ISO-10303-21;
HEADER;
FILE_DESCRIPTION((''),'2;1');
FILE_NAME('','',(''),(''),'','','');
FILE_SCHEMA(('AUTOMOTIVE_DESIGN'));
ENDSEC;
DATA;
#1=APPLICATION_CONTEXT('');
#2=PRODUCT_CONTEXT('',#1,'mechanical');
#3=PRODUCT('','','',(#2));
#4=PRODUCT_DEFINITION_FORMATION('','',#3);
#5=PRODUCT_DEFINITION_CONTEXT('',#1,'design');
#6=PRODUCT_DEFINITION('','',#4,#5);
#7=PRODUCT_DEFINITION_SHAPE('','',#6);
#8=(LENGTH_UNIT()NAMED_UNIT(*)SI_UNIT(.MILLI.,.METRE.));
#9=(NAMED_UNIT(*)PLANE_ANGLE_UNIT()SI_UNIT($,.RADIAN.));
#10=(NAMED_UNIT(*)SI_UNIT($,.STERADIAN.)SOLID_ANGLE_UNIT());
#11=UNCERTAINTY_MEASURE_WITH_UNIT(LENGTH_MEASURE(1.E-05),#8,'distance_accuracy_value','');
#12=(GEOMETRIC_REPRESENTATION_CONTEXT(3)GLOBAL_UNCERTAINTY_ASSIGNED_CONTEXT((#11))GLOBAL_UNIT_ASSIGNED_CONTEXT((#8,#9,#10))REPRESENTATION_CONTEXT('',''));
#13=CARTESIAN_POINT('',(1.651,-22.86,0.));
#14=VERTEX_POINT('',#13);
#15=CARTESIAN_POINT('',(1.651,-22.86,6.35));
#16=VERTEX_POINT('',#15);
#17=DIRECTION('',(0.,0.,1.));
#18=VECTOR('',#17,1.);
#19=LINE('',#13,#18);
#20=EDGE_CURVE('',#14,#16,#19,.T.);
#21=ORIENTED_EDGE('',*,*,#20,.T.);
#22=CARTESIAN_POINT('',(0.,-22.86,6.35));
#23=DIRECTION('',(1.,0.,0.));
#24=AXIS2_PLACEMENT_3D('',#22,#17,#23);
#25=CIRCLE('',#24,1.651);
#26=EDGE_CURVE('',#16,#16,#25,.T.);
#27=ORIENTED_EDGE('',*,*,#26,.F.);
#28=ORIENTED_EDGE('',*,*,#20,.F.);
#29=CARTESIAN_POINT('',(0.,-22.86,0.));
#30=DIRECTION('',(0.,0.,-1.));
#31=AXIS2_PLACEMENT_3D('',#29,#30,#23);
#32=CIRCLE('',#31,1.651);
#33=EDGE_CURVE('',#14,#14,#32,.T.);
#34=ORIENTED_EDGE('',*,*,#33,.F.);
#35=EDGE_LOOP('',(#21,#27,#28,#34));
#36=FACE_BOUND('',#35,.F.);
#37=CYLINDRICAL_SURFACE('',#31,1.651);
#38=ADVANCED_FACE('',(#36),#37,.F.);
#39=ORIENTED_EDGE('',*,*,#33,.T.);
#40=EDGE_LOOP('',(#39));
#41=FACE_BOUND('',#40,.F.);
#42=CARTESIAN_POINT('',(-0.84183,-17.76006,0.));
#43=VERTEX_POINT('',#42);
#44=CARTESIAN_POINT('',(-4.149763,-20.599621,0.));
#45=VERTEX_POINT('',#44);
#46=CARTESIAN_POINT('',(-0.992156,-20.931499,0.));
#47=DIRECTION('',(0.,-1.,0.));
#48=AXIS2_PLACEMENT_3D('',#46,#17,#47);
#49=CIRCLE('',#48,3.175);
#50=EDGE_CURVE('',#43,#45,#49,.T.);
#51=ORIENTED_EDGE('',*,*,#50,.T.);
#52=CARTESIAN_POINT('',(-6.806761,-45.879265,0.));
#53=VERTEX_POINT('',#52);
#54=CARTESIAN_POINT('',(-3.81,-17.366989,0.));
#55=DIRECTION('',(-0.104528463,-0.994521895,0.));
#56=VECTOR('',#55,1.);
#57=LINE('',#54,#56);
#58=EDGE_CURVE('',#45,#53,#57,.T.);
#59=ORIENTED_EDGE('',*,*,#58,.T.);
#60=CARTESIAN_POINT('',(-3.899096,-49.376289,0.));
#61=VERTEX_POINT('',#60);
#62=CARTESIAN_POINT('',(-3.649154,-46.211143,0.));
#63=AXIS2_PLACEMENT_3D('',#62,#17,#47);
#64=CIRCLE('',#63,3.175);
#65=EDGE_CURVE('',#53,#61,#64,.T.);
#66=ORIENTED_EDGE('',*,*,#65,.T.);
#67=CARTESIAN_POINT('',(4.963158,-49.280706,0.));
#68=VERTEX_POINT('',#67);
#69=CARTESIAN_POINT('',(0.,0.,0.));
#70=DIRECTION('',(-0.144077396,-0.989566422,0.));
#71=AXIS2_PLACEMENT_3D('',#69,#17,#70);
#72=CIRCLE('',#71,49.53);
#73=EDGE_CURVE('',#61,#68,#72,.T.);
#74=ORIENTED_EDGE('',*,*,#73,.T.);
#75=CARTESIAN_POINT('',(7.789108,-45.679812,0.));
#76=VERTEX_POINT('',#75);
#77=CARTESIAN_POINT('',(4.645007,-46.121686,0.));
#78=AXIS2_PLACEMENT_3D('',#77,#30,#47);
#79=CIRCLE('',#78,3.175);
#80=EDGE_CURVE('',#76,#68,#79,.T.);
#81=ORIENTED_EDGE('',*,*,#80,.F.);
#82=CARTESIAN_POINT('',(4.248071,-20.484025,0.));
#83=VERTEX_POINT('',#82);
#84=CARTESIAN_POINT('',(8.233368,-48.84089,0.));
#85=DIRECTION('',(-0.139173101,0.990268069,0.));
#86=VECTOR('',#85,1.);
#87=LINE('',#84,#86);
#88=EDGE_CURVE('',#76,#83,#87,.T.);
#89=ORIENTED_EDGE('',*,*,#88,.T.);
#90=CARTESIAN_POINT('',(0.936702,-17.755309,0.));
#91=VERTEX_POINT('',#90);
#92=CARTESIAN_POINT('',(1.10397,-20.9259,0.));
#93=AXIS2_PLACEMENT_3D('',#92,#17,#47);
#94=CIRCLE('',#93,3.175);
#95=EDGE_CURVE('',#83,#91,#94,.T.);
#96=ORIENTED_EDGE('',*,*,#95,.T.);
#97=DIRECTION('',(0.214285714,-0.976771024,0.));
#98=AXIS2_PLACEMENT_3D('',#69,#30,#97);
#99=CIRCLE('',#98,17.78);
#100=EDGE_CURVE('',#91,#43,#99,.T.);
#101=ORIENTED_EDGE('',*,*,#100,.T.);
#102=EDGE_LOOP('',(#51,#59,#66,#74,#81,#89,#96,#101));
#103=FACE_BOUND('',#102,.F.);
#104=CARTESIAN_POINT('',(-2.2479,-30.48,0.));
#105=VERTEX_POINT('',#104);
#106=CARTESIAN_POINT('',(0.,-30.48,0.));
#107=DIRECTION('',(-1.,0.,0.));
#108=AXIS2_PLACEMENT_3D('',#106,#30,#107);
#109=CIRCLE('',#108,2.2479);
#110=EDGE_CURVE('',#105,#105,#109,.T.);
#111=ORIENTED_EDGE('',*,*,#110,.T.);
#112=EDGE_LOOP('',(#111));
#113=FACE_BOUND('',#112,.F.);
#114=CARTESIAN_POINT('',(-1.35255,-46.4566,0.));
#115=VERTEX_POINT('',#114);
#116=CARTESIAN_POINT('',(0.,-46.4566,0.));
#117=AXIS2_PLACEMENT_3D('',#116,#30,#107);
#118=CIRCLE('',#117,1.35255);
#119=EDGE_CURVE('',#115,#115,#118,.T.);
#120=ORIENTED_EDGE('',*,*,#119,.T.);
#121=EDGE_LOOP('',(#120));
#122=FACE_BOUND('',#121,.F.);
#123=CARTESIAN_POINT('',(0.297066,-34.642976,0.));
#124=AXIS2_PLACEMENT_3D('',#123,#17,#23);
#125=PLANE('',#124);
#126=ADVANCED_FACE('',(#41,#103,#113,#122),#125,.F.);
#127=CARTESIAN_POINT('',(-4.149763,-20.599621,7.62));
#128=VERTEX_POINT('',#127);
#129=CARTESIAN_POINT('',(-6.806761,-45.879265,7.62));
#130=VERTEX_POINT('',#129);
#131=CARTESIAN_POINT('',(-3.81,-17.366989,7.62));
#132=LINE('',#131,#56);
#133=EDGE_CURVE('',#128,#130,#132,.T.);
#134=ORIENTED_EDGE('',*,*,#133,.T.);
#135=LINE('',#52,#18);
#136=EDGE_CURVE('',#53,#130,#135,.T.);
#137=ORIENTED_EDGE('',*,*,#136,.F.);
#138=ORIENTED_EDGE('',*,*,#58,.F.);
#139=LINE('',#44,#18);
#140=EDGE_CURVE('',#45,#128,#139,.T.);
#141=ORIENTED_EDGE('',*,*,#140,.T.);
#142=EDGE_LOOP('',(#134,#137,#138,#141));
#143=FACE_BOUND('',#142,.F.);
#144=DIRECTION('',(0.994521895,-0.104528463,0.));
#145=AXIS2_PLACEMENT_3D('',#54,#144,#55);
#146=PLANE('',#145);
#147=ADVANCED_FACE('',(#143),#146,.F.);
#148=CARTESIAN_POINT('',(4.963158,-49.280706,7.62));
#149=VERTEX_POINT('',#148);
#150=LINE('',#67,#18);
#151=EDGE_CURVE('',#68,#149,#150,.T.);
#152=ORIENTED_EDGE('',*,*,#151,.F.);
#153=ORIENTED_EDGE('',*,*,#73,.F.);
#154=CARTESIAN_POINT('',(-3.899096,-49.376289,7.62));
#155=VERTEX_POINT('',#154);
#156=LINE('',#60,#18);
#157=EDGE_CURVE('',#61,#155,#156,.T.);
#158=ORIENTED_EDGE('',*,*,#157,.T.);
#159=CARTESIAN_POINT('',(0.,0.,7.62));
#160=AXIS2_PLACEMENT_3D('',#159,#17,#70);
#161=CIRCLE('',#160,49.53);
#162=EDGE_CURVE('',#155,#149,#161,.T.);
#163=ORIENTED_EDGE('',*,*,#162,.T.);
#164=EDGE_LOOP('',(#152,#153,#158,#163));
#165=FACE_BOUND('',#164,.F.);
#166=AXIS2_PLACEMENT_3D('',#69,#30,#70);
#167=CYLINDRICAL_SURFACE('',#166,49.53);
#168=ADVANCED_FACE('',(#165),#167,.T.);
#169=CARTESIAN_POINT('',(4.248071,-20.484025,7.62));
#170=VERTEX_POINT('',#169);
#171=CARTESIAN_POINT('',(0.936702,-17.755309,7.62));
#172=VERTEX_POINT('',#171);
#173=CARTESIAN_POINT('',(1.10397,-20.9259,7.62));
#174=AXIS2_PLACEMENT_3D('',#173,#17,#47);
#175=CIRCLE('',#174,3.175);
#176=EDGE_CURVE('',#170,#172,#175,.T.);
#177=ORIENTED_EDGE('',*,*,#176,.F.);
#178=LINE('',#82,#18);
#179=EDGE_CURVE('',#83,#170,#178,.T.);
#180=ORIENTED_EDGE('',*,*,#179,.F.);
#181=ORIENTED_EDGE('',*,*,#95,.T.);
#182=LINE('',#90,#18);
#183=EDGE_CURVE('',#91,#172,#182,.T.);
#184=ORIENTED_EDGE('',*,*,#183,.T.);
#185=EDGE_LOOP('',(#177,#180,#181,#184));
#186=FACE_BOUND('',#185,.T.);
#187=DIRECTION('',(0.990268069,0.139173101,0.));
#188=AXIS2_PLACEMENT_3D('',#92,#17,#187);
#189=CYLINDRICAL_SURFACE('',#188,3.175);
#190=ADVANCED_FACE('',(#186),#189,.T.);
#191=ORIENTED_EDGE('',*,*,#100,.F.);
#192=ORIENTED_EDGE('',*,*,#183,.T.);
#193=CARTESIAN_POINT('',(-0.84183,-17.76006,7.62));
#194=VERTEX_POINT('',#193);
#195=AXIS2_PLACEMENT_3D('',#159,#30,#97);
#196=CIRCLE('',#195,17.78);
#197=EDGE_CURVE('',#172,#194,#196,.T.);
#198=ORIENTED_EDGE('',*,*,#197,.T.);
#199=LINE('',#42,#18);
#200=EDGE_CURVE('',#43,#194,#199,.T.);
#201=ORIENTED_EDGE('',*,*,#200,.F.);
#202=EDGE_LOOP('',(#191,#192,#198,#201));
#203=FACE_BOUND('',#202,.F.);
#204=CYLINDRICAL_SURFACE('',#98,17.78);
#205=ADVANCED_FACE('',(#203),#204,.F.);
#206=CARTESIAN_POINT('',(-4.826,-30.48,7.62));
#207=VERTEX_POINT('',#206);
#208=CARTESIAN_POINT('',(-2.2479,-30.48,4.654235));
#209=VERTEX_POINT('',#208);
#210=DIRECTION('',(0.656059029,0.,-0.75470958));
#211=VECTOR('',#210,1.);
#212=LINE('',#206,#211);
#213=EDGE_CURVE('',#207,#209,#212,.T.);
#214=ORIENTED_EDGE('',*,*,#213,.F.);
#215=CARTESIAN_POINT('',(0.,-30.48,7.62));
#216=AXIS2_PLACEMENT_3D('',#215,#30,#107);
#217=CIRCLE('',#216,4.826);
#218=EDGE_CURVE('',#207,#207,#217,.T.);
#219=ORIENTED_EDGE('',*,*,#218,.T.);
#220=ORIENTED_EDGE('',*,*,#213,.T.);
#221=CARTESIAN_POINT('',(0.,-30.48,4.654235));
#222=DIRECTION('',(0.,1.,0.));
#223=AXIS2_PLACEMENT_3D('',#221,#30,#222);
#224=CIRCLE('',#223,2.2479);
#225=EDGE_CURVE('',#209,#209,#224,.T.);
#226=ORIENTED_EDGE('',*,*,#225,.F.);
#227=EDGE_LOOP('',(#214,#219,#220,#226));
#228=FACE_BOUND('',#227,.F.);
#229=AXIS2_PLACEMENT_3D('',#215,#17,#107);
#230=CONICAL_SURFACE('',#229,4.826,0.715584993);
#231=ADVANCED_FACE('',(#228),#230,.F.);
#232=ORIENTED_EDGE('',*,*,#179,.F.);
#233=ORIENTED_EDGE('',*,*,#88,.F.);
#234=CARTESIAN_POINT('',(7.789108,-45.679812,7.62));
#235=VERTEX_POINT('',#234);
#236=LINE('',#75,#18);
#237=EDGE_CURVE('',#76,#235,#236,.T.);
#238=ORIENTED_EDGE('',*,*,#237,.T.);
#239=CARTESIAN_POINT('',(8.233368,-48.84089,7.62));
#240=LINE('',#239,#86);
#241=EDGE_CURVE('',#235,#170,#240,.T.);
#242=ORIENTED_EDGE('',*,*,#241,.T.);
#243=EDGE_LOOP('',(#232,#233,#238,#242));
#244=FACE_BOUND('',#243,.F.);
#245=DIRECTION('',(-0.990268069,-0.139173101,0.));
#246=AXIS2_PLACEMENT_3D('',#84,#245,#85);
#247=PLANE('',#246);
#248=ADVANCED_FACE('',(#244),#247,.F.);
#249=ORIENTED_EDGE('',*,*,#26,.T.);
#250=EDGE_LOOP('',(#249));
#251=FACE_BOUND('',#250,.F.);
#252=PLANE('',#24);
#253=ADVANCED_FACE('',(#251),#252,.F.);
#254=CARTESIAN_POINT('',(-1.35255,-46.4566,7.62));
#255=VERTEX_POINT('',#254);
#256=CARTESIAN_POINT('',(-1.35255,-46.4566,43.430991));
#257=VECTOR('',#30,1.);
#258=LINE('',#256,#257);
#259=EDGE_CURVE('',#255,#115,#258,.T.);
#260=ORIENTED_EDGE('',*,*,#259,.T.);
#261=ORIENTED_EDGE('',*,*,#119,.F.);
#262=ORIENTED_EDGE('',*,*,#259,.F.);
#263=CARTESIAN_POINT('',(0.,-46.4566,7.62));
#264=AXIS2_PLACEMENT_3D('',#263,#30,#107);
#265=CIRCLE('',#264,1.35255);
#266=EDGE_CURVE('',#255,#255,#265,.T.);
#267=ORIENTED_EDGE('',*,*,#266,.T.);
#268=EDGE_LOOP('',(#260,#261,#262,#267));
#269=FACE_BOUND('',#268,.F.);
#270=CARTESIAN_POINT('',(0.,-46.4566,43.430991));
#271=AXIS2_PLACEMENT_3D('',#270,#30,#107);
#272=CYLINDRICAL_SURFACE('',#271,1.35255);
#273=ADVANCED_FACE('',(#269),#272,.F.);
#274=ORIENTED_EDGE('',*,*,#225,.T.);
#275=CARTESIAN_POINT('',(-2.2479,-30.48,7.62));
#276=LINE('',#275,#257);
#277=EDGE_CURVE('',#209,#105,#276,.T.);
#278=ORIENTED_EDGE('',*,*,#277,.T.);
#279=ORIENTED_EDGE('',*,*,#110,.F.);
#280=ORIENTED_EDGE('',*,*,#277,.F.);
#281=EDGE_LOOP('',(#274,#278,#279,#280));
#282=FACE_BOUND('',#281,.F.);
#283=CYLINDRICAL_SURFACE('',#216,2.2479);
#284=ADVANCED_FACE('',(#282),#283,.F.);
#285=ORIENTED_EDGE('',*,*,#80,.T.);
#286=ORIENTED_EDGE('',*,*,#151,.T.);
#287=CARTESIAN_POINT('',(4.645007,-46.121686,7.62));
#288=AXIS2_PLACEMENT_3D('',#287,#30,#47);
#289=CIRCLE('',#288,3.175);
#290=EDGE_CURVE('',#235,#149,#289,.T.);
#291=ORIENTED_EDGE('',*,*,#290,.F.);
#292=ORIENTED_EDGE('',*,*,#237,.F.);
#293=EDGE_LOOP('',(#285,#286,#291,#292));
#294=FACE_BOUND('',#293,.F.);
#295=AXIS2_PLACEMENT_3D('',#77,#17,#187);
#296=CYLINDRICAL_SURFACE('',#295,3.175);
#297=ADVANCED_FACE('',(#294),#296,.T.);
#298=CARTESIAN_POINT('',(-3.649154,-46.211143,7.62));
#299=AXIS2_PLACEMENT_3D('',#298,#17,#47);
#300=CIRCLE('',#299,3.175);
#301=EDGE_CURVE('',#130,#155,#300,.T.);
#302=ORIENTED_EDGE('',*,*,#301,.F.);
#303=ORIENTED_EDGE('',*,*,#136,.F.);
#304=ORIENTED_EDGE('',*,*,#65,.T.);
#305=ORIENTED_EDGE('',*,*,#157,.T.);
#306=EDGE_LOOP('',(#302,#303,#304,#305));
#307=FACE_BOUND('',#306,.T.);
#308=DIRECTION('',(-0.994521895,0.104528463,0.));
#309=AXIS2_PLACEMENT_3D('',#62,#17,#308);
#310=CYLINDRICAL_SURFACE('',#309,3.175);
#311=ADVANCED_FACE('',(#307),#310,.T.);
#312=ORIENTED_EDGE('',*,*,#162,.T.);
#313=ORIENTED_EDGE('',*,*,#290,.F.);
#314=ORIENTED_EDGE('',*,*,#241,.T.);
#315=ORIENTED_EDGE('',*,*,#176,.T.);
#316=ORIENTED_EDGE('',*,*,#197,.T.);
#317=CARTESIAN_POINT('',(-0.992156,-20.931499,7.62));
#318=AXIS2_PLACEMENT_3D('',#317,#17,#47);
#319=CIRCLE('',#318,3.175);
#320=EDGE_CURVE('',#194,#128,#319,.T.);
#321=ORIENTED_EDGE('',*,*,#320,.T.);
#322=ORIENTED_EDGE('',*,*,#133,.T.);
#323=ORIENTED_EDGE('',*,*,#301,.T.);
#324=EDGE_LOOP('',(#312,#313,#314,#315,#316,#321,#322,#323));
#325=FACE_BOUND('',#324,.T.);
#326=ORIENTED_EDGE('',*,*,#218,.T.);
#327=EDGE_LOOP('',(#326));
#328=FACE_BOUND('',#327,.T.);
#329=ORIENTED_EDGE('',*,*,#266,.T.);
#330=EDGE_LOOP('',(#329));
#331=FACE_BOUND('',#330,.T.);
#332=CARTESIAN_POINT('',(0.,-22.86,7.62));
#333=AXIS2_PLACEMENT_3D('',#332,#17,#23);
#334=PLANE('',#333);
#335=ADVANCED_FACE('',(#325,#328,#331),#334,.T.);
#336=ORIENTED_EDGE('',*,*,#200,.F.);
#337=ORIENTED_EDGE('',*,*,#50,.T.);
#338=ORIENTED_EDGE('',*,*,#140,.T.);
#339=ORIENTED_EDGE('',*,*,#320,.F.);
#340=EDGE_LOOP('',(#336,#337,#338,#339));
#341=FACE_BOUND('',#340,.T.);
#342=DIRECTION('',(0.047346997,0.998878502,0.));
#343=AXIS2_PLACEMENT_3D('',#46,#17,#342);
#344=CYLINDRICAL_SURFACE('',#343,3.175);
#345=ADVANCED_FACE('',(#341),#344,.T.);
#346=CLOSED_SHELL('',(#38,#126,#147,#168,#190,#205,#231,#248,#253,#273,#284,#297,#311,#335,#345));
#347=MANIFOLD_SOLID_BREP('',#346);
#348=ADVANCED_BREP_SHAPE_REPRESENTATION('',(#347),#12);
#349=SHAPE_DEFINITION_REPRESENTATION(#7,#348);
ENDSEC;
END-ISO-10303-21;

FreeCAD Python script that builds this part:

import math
import FreeCAD as App
import Part
import Sketcher
Q = App.Units.Quantity


def edges_at(feature, points):
    """Names of the edges that pass closest to the given points."""
    edges = feature.Shape.Edges
    near = lambda p: min(range(len(edges)), key=lambda i: edges[i].distToShape(Part.Vertex(*p))[0])
    return sorted({f"Edge{near(p) + 1}" for p in points})

doc = App.newDocument("Part")
body = doc.addObject("PartDesign::Body", "Body")

sketch1 = body.newObject("Sketcher::SketchObject", "Sketch")
sketch1.AttachmentSupport = (doc.getObject("XY_Plane"), [""])
sketch1.MapMode = "FlatFace"
sketch1.addGeometry(Part.LineSegment(App.Vector(8.233368, -48.84089, 0), App.Vector(3.81, -17.366989, 0)), False)
sketch1.addGeometry(Part.ArcOfCircle(Part.Circle(App.Vector(0, 0, 0), App.Vector(0, 0, 1), 17.78), math.radians(-102.373625), math.radians(-77.626375)), False)
sketch1.addGeometry(Part.LineSegment(App.Vector(-3.81, -17.366989, 0), App.Vector(-7.136153, -49.013225, 0)), False)
sketch1.addGeometry(Part.ArcOfCircle(Part.Circle(App.Vector(0, 0, 0), App.Vector(0, 0, 1), 49.53), math.radians(-98.283857), math.radians(-80.431309)), False)
sketch1.addConstraint(Sketcher.Constraint("Coincident", 0, 2, 1, 2))
sketch1.addConstraint(Sketcher.Constraint("Coincident", 1, 1, 2, 1))
sketch1.addConstraint(Sketcher.Constraint("Coincident", 2, 2, 3, 1))
sketch1.addConstraint(Sketcher.Constraint("Coincident", 3, 2, 0, 1))
sketch1.addConstraint(Sketcher.Constraint("Coincident", 1, 3, -1, 1))
sketch1.addConstraint(Sketcher.Constraint("Coincident", 3, 3, -1, 1))
sketch1.addConstraint(Sketcher.Constraint("Horizontal", 0, 2, 1, 1))
sketch1.addConstraint(Sketcher.Constraint("Radius", 1, Q("0.7 in")))
sketch1.addConstraint(Sketcher.Constraint("Radius", 3, Q("1.95 in")))
sketch1.addConstraint(Sketcher.Constraint("Angle", 0, Q("98 deg")))
sketch1.addConstraint(Sketcher.Constraint("Angle", 2, Q("-96 deg")))
sketch1.addConstraint(Sketcher.Constraint("DistanceX", 1, 1, 0, 2, Q("0.3 in")))
pad1 = body.newObject("PartDesign::Pad", "Pad")
pad1.Profile = sketch1
pad1.Length = Q("0.3 in")
doc.recompute()

fillet = body.newObject("PartDesign::Fillet", "Fillet")
fillet.Base = (pad1, edges_at(pad1, [
    (-7.136, -49.013, 3.81),
    (-3.81, -17.367, 3.81),
    (8.233, -48.841, 3.81),
    (3.81, -17.367, 3.81),
]))
fillet.Radius = Q("0.125 in")

sketch2 = body.newObject("Sketcher::SketchObject", "Sketch001")
sketch2.AttachmentSupport = (doc.getObject("XY_Plane"), [""])
sketch2.MapMode = "FlatFace"
sketch2.AttachmentOffset = App.Placement(App.Vector(0, 0, 0.3 * 25.4), App.Rotation())
sketch2.addGeometry(Part.Circle(App.Vector(0, -46.4566, 0), App.Vector(0, 0, 1), 1.35255), False)
sketch2.addConstraint(Sketcher.Constraint("PointOnObject", 0, 3, -2))
sketch2.addConstraint(Sketcher.Constraint("Diameter", 0, Q("0.1065 in")))
sketch2.addConstraint(Sketcher.Constraint("DistanceY", 0, 3, -1, 1, Q("1.829 in")))
doc.recompute()
hole = body.newObject("PartDesign::Hole", "Hole")
hole.Profile = sketch2
hole.ThreadType = "None"
hole.Diameter = Q("0.1065 in")
hole.DepthType = "ThroughAll"

sketch3 = body.newObject("Sketcher::SketchObject", "Sketch002")
sketch3.AttachmentSupport = (doc.getObject("XY_Plane"), [""])
sketch3.MapMode = "FlatFace"
sketch3.AttachmentOffset = App.Placement(App.Vector(0, 0, 0.3 * 25.4), App.Rotation())
sketch3.addGeometry(Part.Circle(App.Vector(0, -30.48, 0), App.Vector(0, 0, 1), 2.2479), False)
sketch3.addConstraint(Sketcher.Constraint("PointOnObject", 0, 3, -2))
sketch3.addConstraint(Sketcher.Constraint("Diameter", 0, Q("0.177 in")))
sketch3.addConstraint(Sketcher.Constraint("DistanceY", 0, 3, -1, 1, Q("1.2 in")))
doc.recompute()
hole2 = body.newObject("PartDesign::Hole", "Hole001")
hole2.Profile = sketch3
hole2.ThreadType = "None"
hole2.Diameter = Q("0.177 in")
hole2.DepthType = "ThroughAll"
hole2.HoleCutType = "Countersink"
hole2.HoleCutDiameter = Q("0.38 in")
hole2.HoleCutCountersinkAngle = 82

sketch4 = body.newObject("Sketcher::SketchObject", "Sketch003")
sketch4.AttachmentSupport = (doc.getObject("XY_Plane"), [""])
sketch4.MapMode = "FlatFace"
sketch4.addGeometry(Part.Circle(App.Vector(0, -22.86, 0), App.Vector(0, 0, 1), 1.651), False)
sketch4.addConstraint(Sketcher.Constraint("PointOnObject", 0, 3, -2))
sketch4.addConstraint(Sketcher.Constraint("Diameter", 0, Q("0.13 in")))
sketch4.addConstraint(Sketcher.Constraint("DistanceY", 0, 3, -1, 1, Q("0.9 in")))
pocket1 = body.newObject("PartDesign::Pocket", "Pocket")
pocket1.Profile = sketch4
pocket1.Type = "ThroughAll"
pocket1.Reversed = True

sketch5 = body.newObject("Sketcher::SketchObject", "Sketch004")
sketch5.AttachmentSupport = (doc.getObject("XY_Plane"), [""])
sketch5.MapMode = "FlatFace"
sketch5.AttachmentOffset = App.Placement(App.Vector(0, 0, 0.3 * 25.4), App.Rotation())
sketch5.addGeometry(Part.Circle(App.Vector(0, -22.86, 0), App.Vector(0, 0, 1), 1.651), False)
sketch5.addConstraint(Sketcher.Constraint("PointOnObject", 0, 3, -2))
sketch5.addConstraint(Sketcher.Constraint("Diameter", 0, Q("0.13 in")))
sketch5.addConstraint(Sketcher.Constraint("DistanceY", 0, 3, -1, 1, Q("0.9 in")))
pad2 = body.newObject("PartDesign::Pad", "Pad001")
pad2.Profile = sketch5
pad2.Length = Q("0.05 in")
pad2.Reversed = True

doc.recompute()
